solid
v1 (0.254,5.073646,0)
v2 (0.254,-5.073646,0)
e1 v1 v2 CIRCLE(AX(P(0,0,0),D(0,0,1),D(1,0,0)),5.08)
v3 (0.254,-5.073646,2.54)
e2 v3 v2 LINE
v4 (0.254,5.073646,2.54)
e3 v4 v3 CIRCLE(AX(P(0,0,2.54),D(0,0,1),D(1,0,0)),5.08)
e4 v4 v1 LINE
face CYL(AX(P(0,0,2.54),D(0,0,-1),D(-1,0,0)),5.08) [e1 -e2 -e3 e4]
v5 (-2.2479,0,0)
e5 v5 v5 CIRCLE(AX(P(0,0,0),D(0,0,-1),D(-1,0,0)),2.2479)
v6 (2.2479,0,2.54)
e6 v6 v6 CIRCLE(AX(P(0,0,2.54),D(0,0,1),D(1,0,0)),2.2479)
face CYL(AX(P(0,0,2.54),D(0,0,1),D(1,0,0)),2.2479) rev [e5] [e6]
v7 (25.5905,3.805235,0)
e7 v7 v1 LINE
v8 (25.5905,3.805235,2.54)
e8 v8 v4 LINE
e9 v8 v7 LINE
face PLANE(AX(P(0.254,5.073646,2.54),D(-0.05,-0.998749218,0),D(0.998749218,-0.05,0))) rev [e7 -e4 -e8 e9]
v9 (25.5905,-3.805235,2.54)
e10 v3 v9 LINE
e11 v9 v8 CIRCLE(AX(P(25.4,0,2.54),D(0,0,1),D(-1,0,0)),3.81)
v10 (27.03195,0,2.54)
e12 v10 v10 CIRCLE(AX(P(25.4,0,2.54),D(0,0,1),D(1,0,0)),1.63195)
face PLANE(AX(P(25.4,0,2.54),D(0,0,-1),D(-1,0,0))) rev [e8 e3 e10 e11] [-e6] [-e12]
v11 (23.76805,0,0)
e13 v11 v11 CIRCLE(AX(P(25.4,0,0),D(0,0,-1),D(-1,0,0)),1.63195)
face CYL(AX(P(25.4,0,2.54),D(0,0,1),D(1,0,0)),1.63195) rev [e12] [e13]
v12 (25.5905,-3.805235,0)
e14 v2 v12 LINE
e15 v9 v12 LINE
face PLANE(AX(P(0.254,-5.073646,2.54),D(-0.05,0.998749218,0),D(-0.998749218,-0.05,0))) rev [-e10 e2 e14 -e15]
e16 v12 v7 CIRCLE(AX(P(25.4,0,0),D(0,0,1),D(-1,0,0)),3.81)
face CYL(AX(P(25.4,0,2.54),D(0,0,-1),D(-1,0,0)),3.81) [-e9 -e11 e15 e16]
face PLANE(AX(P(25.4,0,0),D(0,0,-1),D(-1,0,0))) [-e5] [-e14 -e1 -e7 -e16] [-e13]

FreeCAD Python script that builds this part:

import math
import FreeCAD as App
import Part
import Sketcher

V = App.Vector
Q = App.Units.Quantity

doc = App.newDocument("Part")
body = doc.addObject("PartDesign::Body", "Body")

# Sketch on XY plane
sketch1 = doc.addObject("Sketcher::SketchObject", "Sketch")
body.addObject(sketch1)
sketch1.AttachmentSupport = (doc.XY_Plane, [""])
sketch1.MapMode = "FlatFace"
sketch1.addGeometry([
    Part.LineSegment(V(0.3, -5.1, 0), V(25.6, -3.8, 0)),
    Part.ArcOfCircle(Part.Circle(V(25.4, 0, 0), V(0, 0, 1), 3.8), math.radians(-87), math.radians(87)),
    Part.LineSegment(V(25.6, 3.8, 0), V(0.3, 5.1, 0)),
    Part.ArcOfCircle(Part.Circle(V(0, 0, 0), V(0, 0, 1), 5.1), math.radians(87), math.radians(273)),
], False)
sketch1.addConstraint([
    Sketcher.Constraint("Tangent", 0, 2, 1, 1),
    Sketcher.Constraint("Tangent", 1, 2, 2, 1),
    Sketcher.Constraint("Tangent", 2, 2, 3, 1),
    Sketcher.Constraint("Tangent", 3, 2, 0, 1),
    Sketcher.Constraint("Coincident", 3, 3, -1, 1),
    Sketcher.Constraint("PointOnObject", 1, 3, -1),
    Sketcher.Constraint("Radius", 3, Q("0.2 in")),
    Sketcher.Constraint("Radius", 1, Q("0.15 in")),
    Sketcher.Constraint("DistanceX", -1, 1, 1, 3, Q("1 in")),
])
pad1 = doc.addObject("PartDesign::Pad", "Pad")
body.addObject(pad1)
pad1.Profile = sketch1
pad1.Length = Q("0.1 in")

# Sketch on XY plane
sketch2 = doc.addObject("Sketcher::SketchObject", "Sketch001")
body.addObject(sketch2)
sketch2.AttachmentSupport = (doc.XY_Plane, [""])
sketch2.MapMode = "FlatFace"
sketch2.AttachmentOffset = App.Placement(V(0, 0, 0.1 * 25.4), App.Rotation())
sketch2.addGeometry(Part.Circle(V(0, 0, 0), V(0, 0, 1), 2.2), False)
sketch2.addConstraint([
    Sketcher.Constraint("Coincident", 0, 3, -1, 1),
    Sketcher.Constraint("Diameter", 0, Q("0.177 in")),
])
doc.recompute()
hole = doc.addObject("PartDesign::Hole", "Hole")
body.addObject(hole)
hole.Profile = sketch2
hole.ThreadType = "None"
hole.Diameter = Q("0.177 in")
hole.DepthType = "ThroughAll"

# Sketch on XY plane
sketch3 = doc.addObject("Sketcher::SketchObject", "Sketch002")
body.addObject(sketch3)
sketch3.AttachmentSupport = (doc.XY_Plane, [""])
sketch3.MapMode = "FlatFace"
sketch3.AttachmentOffset = App.Placement(V(0, 0, 0.1 * 25.4), App.Rotation())
sketch3.addGeometry(Part.Circle(V(25.4, 0, 0), V(0, 0, 1), 1.6), False)
sketch3.addConstraint([
    Sketcher.Constraint("PointOnObject", 0, 3, -1),
    Sketcher.Constraint("DistanceX", -1, 1, 0, 3, Q("1 in")),
    Sketcher.Constraint("Diameter", 0, Q("0.1285 in")),
])
doc.recompute()
hole2 = doc.addObject("PartDesign::Hole", "Hole001")
body.addObject(hole2)
hole2.Profile = sketch3
hole2.ThreadType = "None"
hole2.Diameter = Q("0.1285 in")
hole2.DepthType = "ThroughAll"

doc.recompute()
